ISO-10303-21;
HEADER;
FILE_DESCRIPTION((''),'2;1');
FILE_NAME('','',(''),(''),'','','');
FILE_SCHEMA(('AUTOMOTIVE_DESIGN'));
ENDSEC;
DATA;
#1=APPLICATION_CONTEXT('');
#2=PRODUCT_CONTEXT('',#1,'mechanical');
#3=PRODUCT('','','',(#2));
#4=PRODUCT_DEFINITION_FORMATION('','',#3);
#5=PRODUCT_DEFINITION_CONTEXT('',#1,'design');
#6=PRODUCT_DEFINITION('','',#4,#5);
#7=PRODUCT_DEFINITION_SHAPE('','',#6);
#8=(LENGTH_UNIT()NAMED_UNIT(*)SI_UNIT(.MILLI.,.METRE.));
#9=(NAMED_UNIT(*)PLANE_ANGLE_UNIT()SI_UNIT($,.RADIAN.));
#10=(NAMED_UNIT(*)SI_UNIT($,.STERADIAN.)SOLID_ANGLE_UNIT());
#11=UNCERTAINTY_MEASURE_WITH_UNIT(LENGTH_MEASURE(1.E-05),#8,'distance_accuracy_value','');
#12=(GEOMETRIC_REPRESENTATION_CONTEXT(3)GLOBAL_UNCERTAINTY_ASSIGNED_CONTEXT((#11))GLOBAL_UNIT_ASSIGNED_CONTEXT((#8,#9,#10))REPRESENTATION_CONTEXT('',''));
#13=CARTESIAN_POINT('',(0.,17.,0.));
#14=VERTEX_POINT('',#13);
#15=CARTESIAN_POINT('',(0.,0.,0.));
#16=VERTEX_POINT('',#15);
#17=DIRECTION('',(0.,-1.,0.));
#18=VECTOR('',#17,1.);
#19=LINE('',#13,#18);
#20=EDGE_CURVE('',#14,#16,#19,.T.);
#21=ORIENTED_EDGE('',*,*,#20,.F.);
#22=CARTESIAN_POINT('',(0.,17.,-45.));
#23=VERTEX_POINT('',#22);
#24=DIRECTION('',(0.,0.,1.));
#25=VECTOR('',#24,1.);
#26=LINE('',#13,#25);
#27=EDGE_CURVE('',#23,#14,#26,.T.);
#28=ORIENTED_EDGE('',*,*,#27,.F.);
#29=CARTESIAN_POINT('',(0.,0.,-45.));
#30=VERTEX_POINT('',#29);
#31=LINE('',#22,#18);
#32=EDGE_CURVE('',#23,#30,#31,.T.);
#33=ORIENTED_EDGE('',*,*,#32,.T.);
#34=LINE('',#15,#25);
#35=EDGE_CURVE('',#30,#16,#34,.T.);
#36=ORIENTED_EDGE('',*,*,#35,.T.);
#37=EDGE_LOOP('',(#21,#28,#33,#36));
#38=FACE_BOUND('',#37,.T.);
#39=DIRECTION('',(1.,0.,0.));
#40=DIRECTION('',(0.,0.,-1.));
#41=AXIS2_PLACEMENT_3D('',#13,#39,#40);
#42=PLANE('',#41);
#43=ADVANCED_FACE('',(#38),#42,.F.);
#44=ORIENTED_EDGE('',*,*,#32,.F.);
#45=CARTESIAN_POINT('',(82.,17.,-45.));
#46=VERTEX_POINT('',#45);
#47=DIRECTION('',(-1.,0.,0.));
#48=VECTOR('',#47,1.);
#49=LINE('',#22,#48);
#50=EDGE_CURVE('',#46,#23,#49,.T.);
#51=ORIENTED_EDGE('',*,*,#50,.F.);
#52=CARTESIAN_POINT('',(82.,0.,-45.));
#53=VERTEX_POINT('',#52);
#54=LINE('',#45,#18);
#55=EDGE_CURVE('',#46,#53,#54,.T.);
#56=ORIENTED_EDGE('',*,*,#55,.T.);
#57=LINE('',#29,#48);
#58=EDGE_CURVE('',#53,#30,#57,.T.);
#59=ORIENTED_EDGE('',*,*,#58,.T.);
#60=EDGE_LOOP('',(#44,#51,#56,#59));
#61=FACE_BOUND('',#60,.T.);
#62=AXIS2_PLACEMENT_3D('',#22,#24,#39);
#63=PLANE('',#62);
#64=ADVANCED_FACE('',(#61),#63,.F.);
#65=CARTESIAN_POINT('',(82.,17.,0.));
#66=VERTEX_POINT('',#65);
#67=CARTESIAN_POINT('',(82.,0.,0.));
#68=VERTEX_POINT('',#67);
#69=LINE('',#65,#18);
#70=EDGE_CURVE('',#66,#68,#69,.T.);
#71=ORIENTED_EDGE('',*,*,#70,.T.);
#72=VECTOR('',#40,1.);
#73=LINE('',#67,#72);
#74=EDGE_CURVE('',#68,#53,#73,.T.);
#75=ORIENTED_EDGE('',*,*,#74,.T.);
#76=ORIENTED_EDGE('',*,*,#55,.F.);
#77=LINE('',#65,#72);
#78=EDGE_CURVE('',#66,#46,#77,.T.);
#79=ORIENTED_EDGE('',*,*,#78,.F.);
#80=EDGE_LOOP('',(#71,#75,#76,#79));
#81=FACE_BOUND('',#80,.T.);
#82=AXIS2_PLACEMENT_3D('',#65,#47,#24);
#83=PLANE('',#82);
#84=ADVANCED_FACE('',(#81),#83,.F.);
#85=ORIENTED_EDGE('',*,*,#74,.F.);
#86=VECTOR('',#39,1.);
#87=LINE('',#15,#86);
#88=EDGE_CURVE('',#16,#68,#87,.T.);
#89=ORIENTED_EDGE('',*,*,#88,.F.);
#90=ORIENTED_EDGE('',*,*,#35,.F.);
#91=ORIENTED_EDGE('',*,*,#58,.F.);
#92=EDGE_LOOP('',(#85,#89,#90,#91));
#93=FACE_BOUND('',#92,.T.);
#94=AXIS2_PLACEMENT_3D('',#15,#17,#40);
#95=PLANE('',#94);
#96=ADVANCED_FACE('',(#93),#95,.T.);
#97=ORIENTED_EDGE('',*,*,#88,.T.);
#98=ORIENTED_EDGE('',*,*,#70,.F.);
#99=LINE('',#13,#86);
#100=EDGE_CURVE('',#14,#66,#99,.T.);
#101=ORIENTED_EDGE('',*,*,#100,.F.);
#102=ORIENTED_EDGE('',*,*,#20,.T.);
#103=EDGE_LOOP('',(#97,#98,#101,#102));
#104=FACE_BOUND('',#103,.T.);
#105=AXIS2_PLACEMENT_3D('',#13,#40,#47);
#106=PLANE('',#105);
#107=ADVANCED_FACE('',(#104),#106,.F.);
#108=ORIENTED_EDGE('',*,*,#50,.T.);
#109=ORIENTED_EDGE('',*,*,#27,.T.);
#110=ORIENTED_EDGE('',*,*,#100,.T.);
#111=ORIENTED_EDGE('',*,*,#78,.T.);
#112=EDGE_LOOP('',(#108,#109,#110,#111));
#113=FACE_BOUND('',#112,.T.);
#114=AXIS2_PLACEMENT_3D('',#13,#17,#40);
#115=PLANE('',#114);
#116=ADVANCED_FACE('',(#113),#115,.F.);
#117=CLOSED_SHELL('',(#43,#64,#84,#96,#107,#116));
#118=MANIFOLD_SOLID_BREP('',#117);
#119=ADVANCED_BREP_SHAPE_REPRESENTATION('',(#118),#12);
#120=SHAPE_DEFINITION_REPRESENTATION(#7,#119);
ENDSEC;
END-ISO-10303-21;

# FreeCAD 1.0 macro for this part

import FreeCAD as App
import Part
import Sketcher

V = App.Vector
Q = App.Units.Quantity


def add_polygon(sketch, points):
    """Adds a closed chain of lines whose ends are joined by coincident constraints."""
    first, n = sketch.GeometryCount, len(points)
    for a, b in zip(points, points[1:] + points[:1]):
        sketch.addGeometry(Part.LineSegment(App.Vector(*a, 0), App.Vector(*b, 0)), False)
    for i in range(n):
        sketch.addConstraint(Sketcher.Constraint("Coincident", first + i, 2, first + (i + 1) % n, 1))

doc = App.newDocument("Part")
params = doc.addObject("Spreadsheet::Sheet", "Params")
for row, (alias, value) in enumerate([
    ("sketch1_width", "82 mm"),
    ("sketch1_height", "45 mm"),
    ("pad1_length", "17 mm"),
], start=1):
    params.set(f"A{row}", alias)
    params.set(f"B{row}", "=" + value)
    params.setAlias(f"B{row}", alias)

body = doc.addObject("PartDesign::Body", "Body")

sketch1 = doc.addObject("Sketcher::SketchObject", "Sketch")
body.addObject(sketch1)
sketch1.AttachmentSupport = (doc.XZ_Plane, [""])
sketch1.MapMode = "FlatFace"
add_polygon(sketch1, [(0, -45), (0, 0), (82, 0), (82, -45)])
sketch1.addConstraint([
    Sketcher.Constraint("Vertical", 0),
    Sketcher.Constraint("Horizontal", 1),
    Sketcher.Constraint("Vertical", 2),
    Sketcher.Constraint("Horizontal", 3),
    Sketcher.Constraint("Coincident", 0, 2, -1, 1),
    Sketcher.Constraint("DistanceX", 1, 1, 1, 2, Q("82 mm")),
    Sketcher.Constraint("DistanceY", 0, 1, 0, 2, Q("45 mm")),
])
sketch1.setExpression("Constraints[9]", "Params.sketch1_width")
sketch1.setExpression("Constraints[10]", "Params.sketch1_height")
pad1 = doc.addObject("PartDesign::Pad", "Pad")
body.addObject(pad1)
pad1.Profile = sketch1
pad1.setExpression("Length", "Params.pad1_length")
pad1.Reversed = True

doc.recompute()
